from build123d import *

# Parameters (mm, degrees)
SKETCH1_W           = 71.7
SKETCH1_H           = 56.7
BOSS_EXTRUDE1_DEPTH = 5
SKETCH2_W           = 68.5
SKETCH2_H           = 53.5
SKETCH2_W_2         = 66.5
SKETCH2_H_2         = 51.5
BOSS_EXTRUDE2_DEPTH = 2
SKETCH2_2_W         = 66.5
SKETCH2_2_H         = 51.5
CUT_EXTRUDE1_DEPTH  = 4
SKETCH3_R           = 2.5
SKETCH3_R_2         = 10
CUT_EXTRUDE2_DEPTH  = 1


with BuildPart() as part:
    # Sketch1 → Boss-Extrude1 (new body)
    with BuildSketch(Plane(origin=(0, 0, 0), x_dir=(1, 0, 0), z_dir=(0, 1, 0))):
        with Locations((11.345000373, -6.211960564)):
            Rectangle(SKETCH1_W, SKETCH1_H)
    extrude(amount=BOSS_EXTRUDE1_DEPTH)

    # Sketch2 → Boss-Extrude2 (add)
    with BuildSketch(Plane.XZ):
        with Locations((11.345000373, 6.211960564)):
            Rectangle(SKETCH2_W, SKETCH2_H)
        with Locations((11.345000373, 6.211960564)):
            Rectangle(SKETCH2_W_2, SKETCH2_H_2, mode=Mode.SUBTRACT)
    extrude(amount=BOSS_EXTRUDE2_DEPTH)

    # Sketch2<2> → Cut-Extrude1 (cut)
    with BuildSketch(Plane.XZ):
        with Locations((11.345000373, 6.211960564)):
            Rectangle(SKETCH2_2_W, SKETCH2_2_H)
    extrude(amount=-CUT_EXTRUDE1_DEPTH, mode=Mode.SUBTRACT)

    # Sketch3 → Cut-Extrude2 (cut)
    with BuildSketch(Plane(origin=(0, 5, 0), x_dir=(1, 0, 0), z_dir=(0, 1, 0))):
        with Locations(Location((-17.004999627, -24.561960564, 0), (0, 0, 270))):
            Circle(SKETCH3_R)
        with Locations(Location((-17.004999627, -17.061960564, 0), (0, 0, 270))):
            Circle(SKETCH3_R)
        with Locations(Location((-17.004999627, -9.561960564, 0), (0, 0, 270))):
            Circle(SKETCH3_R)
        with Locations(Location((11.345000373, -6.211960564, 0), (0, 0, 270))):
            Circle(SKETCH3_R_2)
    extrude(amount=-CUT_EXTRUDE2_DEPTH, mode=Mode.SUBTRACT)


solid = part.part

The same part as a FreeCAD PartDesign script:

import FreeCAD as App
import Part
import Sketcher
Q = App.Units.Quantity

doc = App.newDocument("Part")
body = doc.addObject("PartDesign::Body", "Body")

# Sketch on XZ plane
sketch1 = doc.addObject("Sketcher::SketchObject", "Sketch")
body.addObject(sketch1)
sketch1.AttachmentSupport = (doc.XZ_Plane, [""])
sketch1.MapMode = "FlatFace"
sketch1.addGeometry([
    Part.LineSegment(App.Vector(-25, -22, 0), App.Vector(-25, 35, 0)),
    Part.LineSegment(App.Vector(-25, 35, 0), App.Vector(47, 35, 0)),
    Part.LineSegment(App.Vector(47, 35, 0), App.Vector(47, -22, 0)),
    Part.LineSegment(App.Vector(47, -22, 0), App.Vector(-25, -22, 0)),
], False)
sketch1.addConstraint([
    Sketcher.Constraint("Coincident", 0, 2, 1, 1),
    Sketcher.Constraint("Coincident", 1, 2, 2, 1),
    Sketcher.Constraint("Coincident", 2, 2, 3, 1),
    Sketcher.Constraint("Coincident", 3, 2, 0, 1),
    Sketcher.Constraint("Vertical", 0),
    Sketcher.Constraint("Horizontal", 1),
    Sketcher.Constraint("Vertical", 2),
    Sketcher.Constraint("Horizontal", 3),
    Sketcher.Constraint("DistanceX", 1, 1, 1, 2, Q("71.7 mm")),
    Sketcher.Constraint("DistanceY", 0, 1, 0, 2, Q("56.7 mm")),
    Sketcher.Constraint("DistanceX", 0, 2, -1, 1, Q("24.505 mm")),
    Sketcher.Constraint("DistanceY", -1, 1, 0, 2, Q("34.561961 mm")),
])
pad1 = doc.addObject("PartDesign::Pad", "Pad")
body.addObject(pad1)
pad1.Profile = sketch1
pad1.Length = 5
pad1.Reversed = True

# Sketch on XZ plane
sketch2 = doc.addObject("Sketcher::SketchObject", "Sketch001")
body.addObject(sketch2)
sketch2.AttachmentSupport = (doc.XZ_Plane, [""])
sketch2.MapMode = "FlatFace"
sketch2.addGeometry([
    Part.LineSegment(App.Vector(-23, 33, 0), App.Vector(-23, -21, 0)),  # 0
    Part.LineSegment(App.Vector(-23, -21, 0), App.Vector(46, -21, 0)),  # 1
    Part.LineSegment(App.Vector(46, -21, 0), App.Vector(46, 33, 0)),  # 2
    Part.LineSegment(App.Vector(46, 33, 0), App.Vector(-23, 33, 0)),  # 3
    Part.LineSegment(App.Vector(45, -20, 0), App.Vector(-22, -20, 0)),  # 4
    Part.LineSegment(App.Vector(-22, -20, 0), App.Vector(-22, 32, 0)),  # 5
    Part.LineSegment(App.Vector(-22, 32, 0), App.Vector(45, 32, 0)),  # 6
    Part.LineSegment(App.Vector(45, 32, 0), App.Vector(45, -20, 0)),  # 7
], False)
sketch2.addConstraint([
    Sketcher.Constraint("Coincident", 0, 2, 1, 1),
    Sketcher.Constraint("Coincident", 1, 2, 2, 1),
    Sketcher.Constraint("Coincident", 2, 2, 3, 1),
    Sketcher.Constraint("Coincident", 3, 2, 0, 1),
    Sketcher.Constraint("Coincident", 4, 2, 5, 1),
    Sketcher.Constraint("Coincident", 5, 2, 6, 1),
    Sketcher.Constraint("Coincident", 6, 2, 7, 1),
    Sketcher.Constraint("Coincident", 7, 2, 4, 1),
    Sketcher.Constraint("Vertical", 0),
    Sketcher.Constraint("Horizontal", 1),
    Sketcher.Constraint("Vertical", 2),
    Sketcher.Constraint("Horizontal", 3),
    Sketcher.Constraint("Horizontal", 4),
    Sketcher.Constraint("Vertical", 5),
    Sketcher.Constraint("Horizontal", 6),
    Sketcher.Constraint("Vertical", 7),
    Sketcher.Constraint("DistanceX", 1, 1, 1, 2, Q("68.5 mm")),
    Sketcher.Constraint("DistanceX", 4, 2, 4, 1, Q("66.5 mm")),
    Sketcher.Constraint("DistanceY", 0, 2, 0, 1, Q("53.5 mm")),
    Sketcher.Constraint("DistanceY", 5, 1, 5, 2, Q("51.5 mm")),
    Sketcher.Constraint("DistanceX", 0, 2, 4, 2, Q("1 mm")),
    Sketcher.Constraint("DistanceY", 0, 2, 4, 2, Q("1 mm")),
    Sketcher.Constraint("DistanceX", 0, 2, -1, 1, Q("22.905 mm")),
    Sketcher.Constraint("DistanceY", 0, 2, -1, 1, Q("20.538039 mm")),
])
pad2 = doc.addObject("PartDesign::Pad", "Pad001")
body.addObject(pad2)
pad2.Profile = sketch2
pad2.Length = 2

# Sketch on XZ plane
sketch3 = doc.addObject("Sketcher::SketchObject", "Sketch002")
body.addObject(sketch3)
sketch3.AttachmentSupport = (doc.XZ_Plane, [""])
sketch3.MapMode = "FlatFace"
sketch3.addGeometry([
    Part.LineSegment(App.Vector(-22, 32, 0), App.Vector(-22, -20, 0)),
    Part.LineSegment(App.Vector(-22, -20, 0), App.Vector(45, -20, 0)),
    Part.LineSegment(App.Vector(45, -20, 0), App.Vector(45, 32, 0)),
    Part.LineSegment(App.Vector(45, 32, 0), App.Vector(-22, 32, 0)),
], False)
sketch3.addConstraint([
    Sketcher.Constraint("Coincident", 0, 2, 1, 1),
    Sketcher.Constraint("Coincident", 1, 2, 2, 1),
    Sketcher.Constraint("Coincident", 2, 2, 3, 1),
    Sketcher.Constraint("Coincident", 3, 2, 0, 1),
    Sketcher.Constraint("Vertical", 0),
    Sketcher.Constraint("Horizontal", 1),
    Sketcher.Constraint("Vertical", 2),
    Sketcher.Constraint("Horizontal", 3),
    Sketcher.Constraint("DistanceX", 1, 1, 1, 2, Q("66.5 mm")),
    Sketcher.Constraint("DistanceY", 0, 2, 0, 1, Q("51.5 mm")),
    Sketcher.Constraint("DistanceX", 0, 2, -1, 1, Q("21.905 mm")),
    Sketcher.Constraint("DistanceY", 0, 2, -1, 1, Q("19.538039 mm")),
])
pocket1 = doc.addObject("PartDesign::Pocket", "Pocket")
body.addObject(pocket1)
pocket1.Profile = sketch3
pocket1.Length = 4

# Sketch on XZ plane
sketch4 = doc.addObject("Sketcher::SketchObject", "Sketch003")
body.addObject(sketch4)
sketch4.AttachmentSupport = (doc.XZ_Plane, [""])
sketch4.MapMode = "FlatFace"
sketch4.AttachmentOffset = App.Placement(App.Vector(0, 0, -5), App.Rotation())
sketch4.addGeometry([
    Part.Circle(App.Vector(-17, 24.6, 0), App.Vector(0, 0, 1), 2.5),
    Part.Circle(App.Vector(-17, 17.1, 0), App.Vector(0, 0, 1), 2.5),
    Part.Circle(App.Vector(-17, 9.6, 0), App.Vector(0, 0, 1), 2.5),
    Part.Circle(App.Vector(11.3, 6.2, 0), App.Vector(0, 0, 1), 10),
], False)
sketch4.addConstraint([
    Sketcher.Constraint("Equal", 0, 1),
    Sketcher.Constraint("Equal", 1, 2),
    Sketcher.Constraint("Vertical", 0, 3, 1, 3),
    Sketcher.Constraint("Vertical", 1, 3, 2, 3),
    Sketcher.Constraint("Diameter", 0, Q("5 mm")),
    Sketcher.Constraint("Diameter", 3, Q("20 mm")),
    Sketcher.Constraint("DistanceY", 2, 3, 0, 3, Q("15 mm")),
    Sketcher.Constraint("DistanceY", 1, 3, 0, 3, Q("7.5 mm")),
    Sketcher.Constraint("DistanceX", 2, 3, 3, 3, Q("28.35 mm")),
    Sketcher.Constraint("DistanceY", 3, 3, 2, 3, Q("3.35 mm")),
    Sketcher.Constraint("DistanceX", 0, 3, -1, 1, Q("17.005 mm")),
    Sketcher.Constraint("DistanceY", -1, 1, 0, 3, Q("24.561961 mm")),
])
pocket2 = doc.addObject("PartDesign::Pocket", "Pocket001")
body.addObject(pocket2)
pocket2.Profile = sketch4
pocket2.Length = 1
pocket2.Reversed = True

doc.recompute()
